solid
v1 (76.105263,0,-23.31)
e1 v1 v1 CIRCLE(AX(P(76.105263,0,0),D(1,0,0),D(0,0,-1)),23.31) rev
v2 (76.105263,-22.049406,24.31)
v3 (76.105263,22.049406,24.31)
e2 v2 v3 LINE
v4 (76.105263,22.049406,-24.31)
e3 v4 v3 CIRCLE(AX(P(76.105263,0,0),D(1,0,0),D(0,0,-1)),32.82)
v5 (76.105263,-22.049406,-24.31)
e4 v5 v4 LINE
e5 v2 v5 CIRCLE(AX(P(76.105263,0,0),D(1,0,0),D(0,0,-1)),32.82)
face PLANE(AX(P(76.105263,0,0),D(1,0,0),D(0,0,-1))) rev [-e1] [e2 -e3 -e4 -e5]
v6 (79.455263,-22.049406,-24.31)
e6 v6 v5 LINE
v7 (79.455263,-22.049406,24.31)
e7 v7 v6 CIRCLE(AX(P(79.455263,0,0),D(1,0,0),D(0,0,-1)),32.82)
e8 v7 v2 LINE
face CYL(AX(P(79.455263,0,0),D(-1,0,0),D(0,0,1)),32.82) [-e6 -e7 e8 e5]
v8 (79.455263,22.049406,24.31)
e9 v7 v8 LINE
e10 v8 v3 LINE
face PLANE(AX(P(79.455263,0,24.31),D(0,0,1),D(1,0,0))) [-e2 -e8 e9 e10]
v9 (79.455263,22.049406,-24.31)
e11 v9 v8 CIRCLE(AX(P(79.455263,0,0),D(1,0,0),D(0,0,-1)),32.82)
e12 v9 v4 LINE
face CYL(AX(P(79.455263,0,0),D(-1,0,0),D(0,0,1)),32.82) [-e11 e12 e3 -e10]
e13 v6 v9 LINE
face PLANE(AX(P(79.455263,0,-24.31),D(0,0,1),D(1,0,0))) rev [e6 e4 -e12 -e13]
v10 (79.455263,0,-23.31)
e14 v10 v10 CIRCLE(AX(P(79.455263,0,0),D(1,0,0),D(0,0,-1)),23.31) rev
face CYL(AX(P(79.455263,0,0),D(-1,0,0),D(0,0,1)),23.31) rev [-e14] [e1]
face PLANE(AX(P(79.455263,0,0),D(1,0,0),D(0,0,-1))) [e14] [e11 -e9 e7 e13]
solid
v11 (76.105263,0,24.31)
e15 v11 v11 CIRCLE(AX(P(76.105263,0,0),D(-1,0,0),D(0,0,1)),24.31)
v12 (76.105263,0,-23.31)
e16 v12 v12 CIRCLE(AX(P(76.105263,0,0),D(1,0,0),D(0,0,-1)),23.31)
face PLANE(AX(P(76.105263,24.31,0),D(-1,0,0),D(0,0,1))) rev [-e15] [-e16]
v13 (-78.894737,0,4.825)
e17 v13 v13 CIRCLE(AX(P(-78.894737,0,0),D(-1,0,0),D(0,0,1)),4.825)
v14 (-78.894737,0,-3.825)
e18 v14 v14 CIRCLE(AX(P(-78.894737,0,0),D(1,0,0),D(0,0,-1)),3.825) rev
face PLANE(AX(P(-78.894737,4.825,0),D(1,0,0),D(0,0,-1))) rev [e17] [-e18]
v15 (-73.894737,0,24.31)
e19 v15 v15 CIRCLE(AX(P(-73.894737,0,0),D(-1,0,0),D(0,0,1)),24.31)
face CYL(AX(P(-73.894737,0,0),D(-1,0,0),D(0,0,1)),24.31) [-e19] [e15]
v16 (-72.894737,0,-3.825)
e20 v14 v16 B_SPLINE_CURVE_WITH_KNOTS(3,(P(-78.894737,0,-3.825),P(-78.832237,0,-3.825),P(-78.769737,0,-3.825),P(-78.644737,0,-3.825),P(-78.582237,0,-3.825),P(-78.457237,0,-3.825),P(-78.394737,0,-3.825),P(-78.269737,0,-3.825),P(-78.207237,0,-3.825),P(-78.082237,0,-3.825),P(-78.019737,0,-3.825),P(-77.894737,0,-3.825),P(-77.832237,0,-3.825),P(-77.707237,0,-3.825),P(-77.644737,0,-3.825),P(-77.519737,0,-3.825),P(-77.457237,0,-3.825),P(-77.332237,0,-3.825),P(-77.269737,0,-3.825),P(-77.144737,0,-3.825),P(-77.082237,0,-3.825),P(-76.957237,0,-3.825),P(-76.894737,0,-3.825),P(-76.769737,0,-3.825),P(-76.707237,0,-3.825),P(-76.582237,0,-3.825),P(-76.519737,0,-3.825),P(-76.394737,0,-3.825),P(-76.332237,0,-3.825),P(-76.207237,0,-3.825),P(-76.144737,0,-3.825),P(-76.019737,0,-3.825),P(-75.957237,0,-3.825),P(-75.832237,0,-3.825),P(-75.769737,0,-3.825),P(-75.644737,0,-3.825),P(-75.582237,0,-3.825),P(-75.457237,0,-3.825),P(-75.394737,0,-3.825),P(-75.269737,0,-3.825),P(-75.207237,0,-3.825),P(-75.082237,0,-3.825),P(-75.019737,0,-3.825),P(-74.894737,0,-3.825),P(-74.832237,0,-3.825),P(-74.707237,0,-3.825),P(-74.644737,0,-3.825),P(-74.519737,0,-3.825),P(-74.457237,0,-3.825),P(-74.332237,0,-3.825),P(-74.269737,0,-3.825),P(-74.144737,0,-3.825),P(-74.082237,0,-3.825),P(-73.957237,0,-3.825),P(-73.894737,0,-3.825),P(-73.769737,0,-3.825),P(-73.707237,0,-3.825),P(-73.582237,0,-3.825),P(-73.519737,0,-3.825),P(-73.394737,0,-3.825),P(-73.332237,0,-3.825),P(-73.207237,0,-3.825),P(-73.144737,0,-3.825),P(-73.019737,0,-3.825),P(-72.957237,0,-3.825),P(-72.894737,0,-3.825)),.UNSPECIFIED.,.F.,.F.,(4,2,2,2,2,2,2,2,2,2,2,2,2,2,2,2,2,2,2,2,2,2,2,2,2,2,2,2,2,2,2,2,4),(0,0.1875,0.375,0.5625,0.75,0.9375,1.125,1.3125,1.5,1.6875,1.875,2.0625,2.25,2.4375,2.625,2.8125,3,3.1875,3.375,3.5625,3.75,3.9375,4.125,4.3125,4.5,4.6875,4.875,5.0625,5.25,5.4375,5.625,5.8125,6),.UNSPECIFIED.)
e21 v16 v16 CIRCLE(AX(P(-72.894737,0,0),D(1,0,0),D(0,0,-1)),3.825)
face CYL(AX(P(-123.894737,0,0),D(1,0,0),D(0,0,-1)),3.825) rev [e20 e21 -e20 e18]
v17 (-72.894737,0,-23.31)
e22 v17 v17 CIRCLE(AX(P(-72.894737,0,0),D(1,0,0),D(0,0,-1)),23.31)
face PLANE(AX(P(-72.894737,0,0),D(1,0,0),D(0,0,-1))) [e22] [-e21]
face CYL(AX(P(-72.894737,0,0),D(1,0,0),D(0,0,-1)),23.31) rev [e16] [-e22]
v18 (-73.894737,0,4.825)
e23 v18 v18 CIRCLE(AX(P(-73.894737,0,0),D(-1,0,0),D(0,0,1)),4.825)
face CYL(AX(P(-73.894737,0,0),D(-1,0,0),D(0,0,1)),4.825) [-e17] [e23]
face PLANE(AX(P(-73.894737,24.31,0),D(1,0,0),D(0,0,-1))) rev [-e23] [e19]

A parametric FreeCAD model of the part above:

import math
import FreeCAD as App
import Part
import Sketcher

V = App.Vector


def add_polygon(sketch, points):
    """Adds a closed chain of lines whose ends are joined by coincident constraints."""
    first, n = sketch.GeometryCount, len(points)
    for a, b in zip(points, points[1:] + points[:1]):
        sketch.addGeometry(Part.LineSegment(App.Vector(*a, 0), App.Vector(*b, 0)), False)
    for i in range(n):
        sketch.addConstraint(Sketcher.Constraint("Coincident", first + i, 2, first + (i + 1) % n, 1))

doc = App.newDocument("Part")
body = doc.addObject("PartDesign::Body", "Body")

sketch1 = body.newObject("Sketcher::SketchObject", "Sketch")
sketch1.AttachmentSupport = (doc.getObject("XY_Plane"), [""])
sketch1.MapMode = "FlatFace"
add_polygon(sketch1, [(76.1, 0), (76.1, 24.3), (-73.9, 24.3), (-73.9, 4.8), (-78.9, 4.8), (-78.9, 0)])
sketch1.addConstraint([
    Sketcher.Constraint("Vertical", 0),
    Sketcher.Constraint("Horizontal", 1),
    Sketcher.Constraint("Vertical", 2),
    Sketcher.Constraint("Horizontal", 3),
    Sketcher.Constraint("Vertical", 4),
    Sketcher.Constraint("Horizontal", 5),
    Sketcher.Constraint("PointOnObject", 4, 2, -1),
    Sketcher.Constraint("DistanceX", 1, 2, 1, 1, 150.0),
    Sketcher.Constraint("DistanceX", 3, 2, 3, 1, 5.0),
    Sketcher.Constraint("DistanceY", 0, 1, 0, 2, 24.31),
    Sketcher.Constraint("DistanceY", 2, 2, 2, 1, 19.485),
    Sketcher.Constraint("DistanceX", -1, 1, 0, 2, 76.105263),
])
revolution = body.newObject("PartDesign::Revolution", "Revolution")
revolution.Profile = sketch1
revolution.ReferenceAxis = (sketch1, ["H_Axis"])
revolution.Angle = 360

sketch2 = body.newObject("Sketcher::SketchObject", "Sketch001")
sketch2.AttachmentSupport = (doc.getObject("YZ_Plane"), [""])
sketch2.MapMode = "FlatFace"
sketch2.AttachmentOffset = App.Placement(V(0, 0, -78.894737), App.Rotation())
sketch2.addGeometry(Part.Circle(V(0, 0, 0), V(0, 0, 1), 3.8), False)
sketch2.addConstraint([
    Sketcher.Constraint("Coincident", 0, 3, -1, 1),
    Sketcher.Constraint("Diameter", 0, 7.65),
])
pocket1 = body.newObject("PartDesign::Pocket", "Pocket")
pocket1.Profile = sketch2
pocket1.Type = "ThroughAll"
pocket1.Midplane = True

sketch3 = body.newObject("Sketcher::SketchObject", "Sketch002")
sketch3.AttachmentSupport = (doc.getObject("YZ_Plane"), [""])
sketch3.MapMode = "FlatFace"
sketch3.AttachmentOffset = App.Placement(V(0, 0, 76.105263), App.Rotation())
sketch3.addGeometry(Part.Circle(V(0, 0, 0), V(0, 0, 1), 23), False)
sketch3.addConstraint([
    Sketcher.Constraint("Coincident", 0, 3, -1, 1),
    Sketcher.Constraint("Diameter", 0, 46.62),
])
pocket2 = body.newObject("PartDesign::Pocket", "Pocket001")
pocket2.Profile = sketch3
pocket2.Length = 149
body2 = doc.addObject("PartDesign::Body", "Body001")

sketch4 = body2.newObject("Sketcher::SketchObject", "Sketch003")
sketch4.AttachmentSupport = (doc.getObject("YZ_Plane001"), [""])
sketch4.MapMode = "FlatFace"
sketch4.AttachmentOffset = App.Placement(V(0, 0, 76.105263), App.Rotation())
sketch4.addGeometry([
    Part.ArcOfCircle(Part.Circle(V(0, 0, 0), V(0, 0, 1), 33), math.radians(-48), math.radians(48)),
    Part.LineSegment(V(22, 24, 0), V(-22, 24, 0)),
    Part.ArcOfCircle(Part.Circle(V(0, 0, 0), V(0, 0, 1), 33), math.radians(132), math.radians(228)),
    Part.LineSegment(V(-22, -24, 0), V(22, -24, 0)),
    Part.Circle(V(0, 0, 0), V(0, 0, 1), 23),
], False)
sketch4.addConstraint([
    Sketcher.Constraint("Coincident", 0, 2, 1, 1),
    Sketcher.Constraint("Coincident", 1, 2, 2, 1),
    Sketcher.Constraint("Coincident", 2, 2, 3, 1),
    Sketcher.Constraint("Coincident", 3, 2, 0, 1),
    Sketcher.Constraint("Horizontal", 1),
    Sketcher.Constraint("Horizontal", 3),
    Sketcher.Constraint("Coincident", 0, 3, -1, 1),
    Sketcher.Constraint("Coincident", 2, 3, -1, 1),
    Sketcher.Constraint("Coincident", 4, 3, -1, 1),
    Sketcher.Constraint("Equal", 0, 2),
    Sketcher.Constraint("Vertical", 1, 2, 2, 2),
    Sketcher.Constraint("Diameter", 4, 46.62),
    Sketcher.Constraint("Radius", 0, 32.82),
    Sketcher.Constraint("DistanceY", -1, 1, 0, 2, 24.31),
])
pad1 = body2.newObject("PartDesign::Pad", "Pad")
pad1.Profile = sketch4
pad1.Length = 3.35

doc.recompute()
